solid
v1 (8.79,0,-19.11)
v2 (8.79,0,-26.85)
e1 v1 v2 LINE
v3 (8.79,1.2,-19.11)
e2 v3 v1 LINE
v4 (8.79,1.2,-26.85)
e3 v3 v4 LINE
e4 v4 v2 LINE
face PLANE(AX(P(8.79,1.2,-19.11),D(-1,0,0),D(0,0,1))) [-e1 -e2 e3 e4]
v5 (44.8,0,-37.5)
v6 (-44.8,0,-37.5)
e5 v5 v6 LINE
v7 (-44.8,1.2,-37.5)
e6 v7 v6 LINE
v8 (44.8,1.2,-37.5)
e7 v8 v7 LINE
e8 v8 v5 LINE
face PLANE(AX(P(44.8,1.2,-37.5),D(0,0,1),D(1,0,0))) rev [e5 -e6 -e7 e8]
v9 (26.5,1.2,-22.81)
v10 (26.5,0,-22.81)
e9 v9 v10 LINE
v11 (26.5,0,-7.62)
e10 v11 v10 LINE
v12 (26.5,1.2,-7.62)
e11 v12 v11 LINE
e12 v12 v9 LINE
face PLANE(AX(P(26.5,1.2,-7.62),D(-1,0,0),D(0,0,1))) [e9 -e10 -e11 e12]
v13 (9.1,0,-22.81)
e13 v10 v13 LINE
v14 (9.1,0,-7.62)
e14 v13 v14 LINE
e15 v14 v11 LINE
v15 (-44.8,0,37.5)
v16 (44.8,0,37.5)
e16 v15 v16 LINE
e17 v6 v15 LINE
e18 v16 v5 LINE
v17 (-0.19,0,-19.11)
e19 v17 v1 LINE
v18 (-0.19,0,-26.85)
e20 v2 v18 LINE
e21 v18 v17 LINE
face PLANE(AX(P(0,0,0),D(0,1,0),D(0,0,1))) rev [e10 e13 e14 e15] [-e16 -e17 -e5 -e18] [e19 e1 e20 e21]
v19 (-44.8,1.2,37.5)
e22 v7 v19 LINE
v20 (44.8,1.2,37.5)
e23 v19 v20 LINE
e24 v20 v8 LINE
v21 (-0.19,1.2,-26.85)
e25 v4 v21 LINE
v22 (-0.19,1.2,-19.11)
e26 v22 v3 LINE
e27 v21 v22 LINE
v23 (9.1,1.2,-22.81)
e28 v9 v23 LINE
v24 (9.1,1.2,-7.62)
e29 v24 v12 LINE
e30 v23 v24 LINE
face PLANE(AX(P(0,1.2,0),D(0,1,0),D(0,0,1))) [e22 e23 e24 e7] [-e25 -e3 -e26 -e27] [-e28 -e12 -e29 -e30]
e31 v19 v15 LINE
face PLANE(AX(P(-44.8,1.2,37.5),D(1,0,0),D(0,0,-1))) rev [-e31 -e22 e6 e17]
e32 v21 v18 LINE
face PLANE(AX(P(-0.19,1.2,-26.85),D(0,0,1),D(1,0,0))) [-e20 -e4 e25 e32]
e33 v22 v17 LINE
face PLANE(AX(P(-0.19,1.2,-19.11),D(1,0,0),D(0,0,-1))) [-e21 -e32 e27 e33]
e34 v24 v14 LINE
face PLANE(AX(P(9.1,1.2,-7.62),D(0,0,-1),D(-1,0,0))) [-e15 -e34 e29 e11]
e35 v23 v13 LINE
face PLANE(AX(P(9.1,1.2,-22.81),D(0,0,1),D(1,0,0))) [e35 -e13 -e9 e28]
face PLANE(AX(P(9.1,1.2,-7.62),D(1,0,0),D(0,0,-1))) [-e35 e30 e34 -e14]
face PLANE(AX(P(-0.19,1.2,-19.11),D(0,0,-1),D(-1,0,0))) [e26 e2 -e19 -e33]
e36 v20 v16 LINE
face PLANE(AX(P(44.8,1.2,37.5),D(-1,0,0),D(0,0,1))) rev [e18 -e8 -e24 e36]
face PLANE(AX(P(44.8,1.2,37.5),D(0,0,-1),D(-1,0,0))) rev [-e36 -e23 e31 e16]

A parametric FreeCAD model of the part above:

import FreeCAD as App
import Part
import Sketcher

V = App.Vector
Q = App.Units.Quantity


def add_polygon(sketch, points):
    """Adds a closed chain of lines whose ends are joined by coincident constraints."""
    first, n = sketch.GeometryCount, len(points)
    for a, b in zip(points, points[1:] + points[:1]):
        sketch.addGeometry(Part.LineSegment(App.Vector(*a, 0), App.Vector(*b, 0)), False)
    for i in range(n):
        sketch.addConstraint(Sketcher.Constraint("Coincident", first + i, 2, first + (i + 1) % n, 1))

doc = App.newDocument("Part")
body = doc.addObject("PartDesign::Body", "Body")

sketch1 = body.newObject("Sketcher::SketchObject", "Sketch")
sketch1.AttachmentSupport = (doc.getObject("XZ_Plane"), [""])
sketch1.MapMode = "FlatFace"
add_polygon(sketch1, [(-45, -38), (-45, 38), (45, 38), (45, -38)])
add_polygon(sketch1, [(26, -8), (9, -8), (9, -23), (26, -23)])
add_polygon(sketch1, [(9, -19), (0, -19), (0, -27), (9, -27)])
sketch1.addConstraint([
    Sketcher.Constraint("Vertical", 0),
    Sketcher.Constraint("Horizontal", 1),
    Sketcher.Constraint("Vertical", 2),
    Sketcher.Constraint("Horizontal", 3),
    Sketcher.Constraint("Horizontal", 4),
    Sketcher.Constraint("Vertical", 5),
    Sketcher.Constraint("Horizontal", 6),
    Sketcher.Constraint("Vertical", 7),
    Sketcher.Constraint("Horizontal", 8),
    Sketcher.Constraint("Vertical", 9),
    Sketcher.Constraint("Horizontal", 10),
    Sketcher.Constraint("Vertical", 11),
    Sketcher.Constraint("Symmetric", 0, 2, 2, 2, -1, 1),
    Sketcher.Constraint("DistanceY", 0, 1, 0, 2, Q("75 mm")),
    Sketcher.Constraint("DistanceX", 1, 1, 1, 2, Q("89.6 mm")),
    Sketcher.Constraint("DistanceX", 4, 2, 4, 1, Q("17.4 mm")),
    Sketcher.Constraint("DistanceX", 8, 2, 8, 1, Q("8.98 mm")),
    Sketcher.Constraint("DistanceY", 5, 2, 5, 1, Q("15.19 mm")),
    Sketcher.Constraint("DistanceY", 9, 2, 9, 1, Q("7.74 mm")),
    Sketcher.Constraint("DistanceX", -1, 1, 4, 2, Q("9.1 mm")),
    Sketcher.Constraint("DistanceY", 5, 2, 8, 2, Q("3.7 mm")),
    Sketcher.Constraint("DistanceY", 4, 2, -1, 1, Q("7.62 mm")),
    Sketcher.Constraint("DistanceX", 8, 2, -1, 1, Q("0.19 mm")),
])
pad1 = body.newObject("PartDesign::Pad", "Pad")
pad1.Profile = sketch1
pad1.Length = 1.2
pad1.Reversed = True

doc.recompute()
